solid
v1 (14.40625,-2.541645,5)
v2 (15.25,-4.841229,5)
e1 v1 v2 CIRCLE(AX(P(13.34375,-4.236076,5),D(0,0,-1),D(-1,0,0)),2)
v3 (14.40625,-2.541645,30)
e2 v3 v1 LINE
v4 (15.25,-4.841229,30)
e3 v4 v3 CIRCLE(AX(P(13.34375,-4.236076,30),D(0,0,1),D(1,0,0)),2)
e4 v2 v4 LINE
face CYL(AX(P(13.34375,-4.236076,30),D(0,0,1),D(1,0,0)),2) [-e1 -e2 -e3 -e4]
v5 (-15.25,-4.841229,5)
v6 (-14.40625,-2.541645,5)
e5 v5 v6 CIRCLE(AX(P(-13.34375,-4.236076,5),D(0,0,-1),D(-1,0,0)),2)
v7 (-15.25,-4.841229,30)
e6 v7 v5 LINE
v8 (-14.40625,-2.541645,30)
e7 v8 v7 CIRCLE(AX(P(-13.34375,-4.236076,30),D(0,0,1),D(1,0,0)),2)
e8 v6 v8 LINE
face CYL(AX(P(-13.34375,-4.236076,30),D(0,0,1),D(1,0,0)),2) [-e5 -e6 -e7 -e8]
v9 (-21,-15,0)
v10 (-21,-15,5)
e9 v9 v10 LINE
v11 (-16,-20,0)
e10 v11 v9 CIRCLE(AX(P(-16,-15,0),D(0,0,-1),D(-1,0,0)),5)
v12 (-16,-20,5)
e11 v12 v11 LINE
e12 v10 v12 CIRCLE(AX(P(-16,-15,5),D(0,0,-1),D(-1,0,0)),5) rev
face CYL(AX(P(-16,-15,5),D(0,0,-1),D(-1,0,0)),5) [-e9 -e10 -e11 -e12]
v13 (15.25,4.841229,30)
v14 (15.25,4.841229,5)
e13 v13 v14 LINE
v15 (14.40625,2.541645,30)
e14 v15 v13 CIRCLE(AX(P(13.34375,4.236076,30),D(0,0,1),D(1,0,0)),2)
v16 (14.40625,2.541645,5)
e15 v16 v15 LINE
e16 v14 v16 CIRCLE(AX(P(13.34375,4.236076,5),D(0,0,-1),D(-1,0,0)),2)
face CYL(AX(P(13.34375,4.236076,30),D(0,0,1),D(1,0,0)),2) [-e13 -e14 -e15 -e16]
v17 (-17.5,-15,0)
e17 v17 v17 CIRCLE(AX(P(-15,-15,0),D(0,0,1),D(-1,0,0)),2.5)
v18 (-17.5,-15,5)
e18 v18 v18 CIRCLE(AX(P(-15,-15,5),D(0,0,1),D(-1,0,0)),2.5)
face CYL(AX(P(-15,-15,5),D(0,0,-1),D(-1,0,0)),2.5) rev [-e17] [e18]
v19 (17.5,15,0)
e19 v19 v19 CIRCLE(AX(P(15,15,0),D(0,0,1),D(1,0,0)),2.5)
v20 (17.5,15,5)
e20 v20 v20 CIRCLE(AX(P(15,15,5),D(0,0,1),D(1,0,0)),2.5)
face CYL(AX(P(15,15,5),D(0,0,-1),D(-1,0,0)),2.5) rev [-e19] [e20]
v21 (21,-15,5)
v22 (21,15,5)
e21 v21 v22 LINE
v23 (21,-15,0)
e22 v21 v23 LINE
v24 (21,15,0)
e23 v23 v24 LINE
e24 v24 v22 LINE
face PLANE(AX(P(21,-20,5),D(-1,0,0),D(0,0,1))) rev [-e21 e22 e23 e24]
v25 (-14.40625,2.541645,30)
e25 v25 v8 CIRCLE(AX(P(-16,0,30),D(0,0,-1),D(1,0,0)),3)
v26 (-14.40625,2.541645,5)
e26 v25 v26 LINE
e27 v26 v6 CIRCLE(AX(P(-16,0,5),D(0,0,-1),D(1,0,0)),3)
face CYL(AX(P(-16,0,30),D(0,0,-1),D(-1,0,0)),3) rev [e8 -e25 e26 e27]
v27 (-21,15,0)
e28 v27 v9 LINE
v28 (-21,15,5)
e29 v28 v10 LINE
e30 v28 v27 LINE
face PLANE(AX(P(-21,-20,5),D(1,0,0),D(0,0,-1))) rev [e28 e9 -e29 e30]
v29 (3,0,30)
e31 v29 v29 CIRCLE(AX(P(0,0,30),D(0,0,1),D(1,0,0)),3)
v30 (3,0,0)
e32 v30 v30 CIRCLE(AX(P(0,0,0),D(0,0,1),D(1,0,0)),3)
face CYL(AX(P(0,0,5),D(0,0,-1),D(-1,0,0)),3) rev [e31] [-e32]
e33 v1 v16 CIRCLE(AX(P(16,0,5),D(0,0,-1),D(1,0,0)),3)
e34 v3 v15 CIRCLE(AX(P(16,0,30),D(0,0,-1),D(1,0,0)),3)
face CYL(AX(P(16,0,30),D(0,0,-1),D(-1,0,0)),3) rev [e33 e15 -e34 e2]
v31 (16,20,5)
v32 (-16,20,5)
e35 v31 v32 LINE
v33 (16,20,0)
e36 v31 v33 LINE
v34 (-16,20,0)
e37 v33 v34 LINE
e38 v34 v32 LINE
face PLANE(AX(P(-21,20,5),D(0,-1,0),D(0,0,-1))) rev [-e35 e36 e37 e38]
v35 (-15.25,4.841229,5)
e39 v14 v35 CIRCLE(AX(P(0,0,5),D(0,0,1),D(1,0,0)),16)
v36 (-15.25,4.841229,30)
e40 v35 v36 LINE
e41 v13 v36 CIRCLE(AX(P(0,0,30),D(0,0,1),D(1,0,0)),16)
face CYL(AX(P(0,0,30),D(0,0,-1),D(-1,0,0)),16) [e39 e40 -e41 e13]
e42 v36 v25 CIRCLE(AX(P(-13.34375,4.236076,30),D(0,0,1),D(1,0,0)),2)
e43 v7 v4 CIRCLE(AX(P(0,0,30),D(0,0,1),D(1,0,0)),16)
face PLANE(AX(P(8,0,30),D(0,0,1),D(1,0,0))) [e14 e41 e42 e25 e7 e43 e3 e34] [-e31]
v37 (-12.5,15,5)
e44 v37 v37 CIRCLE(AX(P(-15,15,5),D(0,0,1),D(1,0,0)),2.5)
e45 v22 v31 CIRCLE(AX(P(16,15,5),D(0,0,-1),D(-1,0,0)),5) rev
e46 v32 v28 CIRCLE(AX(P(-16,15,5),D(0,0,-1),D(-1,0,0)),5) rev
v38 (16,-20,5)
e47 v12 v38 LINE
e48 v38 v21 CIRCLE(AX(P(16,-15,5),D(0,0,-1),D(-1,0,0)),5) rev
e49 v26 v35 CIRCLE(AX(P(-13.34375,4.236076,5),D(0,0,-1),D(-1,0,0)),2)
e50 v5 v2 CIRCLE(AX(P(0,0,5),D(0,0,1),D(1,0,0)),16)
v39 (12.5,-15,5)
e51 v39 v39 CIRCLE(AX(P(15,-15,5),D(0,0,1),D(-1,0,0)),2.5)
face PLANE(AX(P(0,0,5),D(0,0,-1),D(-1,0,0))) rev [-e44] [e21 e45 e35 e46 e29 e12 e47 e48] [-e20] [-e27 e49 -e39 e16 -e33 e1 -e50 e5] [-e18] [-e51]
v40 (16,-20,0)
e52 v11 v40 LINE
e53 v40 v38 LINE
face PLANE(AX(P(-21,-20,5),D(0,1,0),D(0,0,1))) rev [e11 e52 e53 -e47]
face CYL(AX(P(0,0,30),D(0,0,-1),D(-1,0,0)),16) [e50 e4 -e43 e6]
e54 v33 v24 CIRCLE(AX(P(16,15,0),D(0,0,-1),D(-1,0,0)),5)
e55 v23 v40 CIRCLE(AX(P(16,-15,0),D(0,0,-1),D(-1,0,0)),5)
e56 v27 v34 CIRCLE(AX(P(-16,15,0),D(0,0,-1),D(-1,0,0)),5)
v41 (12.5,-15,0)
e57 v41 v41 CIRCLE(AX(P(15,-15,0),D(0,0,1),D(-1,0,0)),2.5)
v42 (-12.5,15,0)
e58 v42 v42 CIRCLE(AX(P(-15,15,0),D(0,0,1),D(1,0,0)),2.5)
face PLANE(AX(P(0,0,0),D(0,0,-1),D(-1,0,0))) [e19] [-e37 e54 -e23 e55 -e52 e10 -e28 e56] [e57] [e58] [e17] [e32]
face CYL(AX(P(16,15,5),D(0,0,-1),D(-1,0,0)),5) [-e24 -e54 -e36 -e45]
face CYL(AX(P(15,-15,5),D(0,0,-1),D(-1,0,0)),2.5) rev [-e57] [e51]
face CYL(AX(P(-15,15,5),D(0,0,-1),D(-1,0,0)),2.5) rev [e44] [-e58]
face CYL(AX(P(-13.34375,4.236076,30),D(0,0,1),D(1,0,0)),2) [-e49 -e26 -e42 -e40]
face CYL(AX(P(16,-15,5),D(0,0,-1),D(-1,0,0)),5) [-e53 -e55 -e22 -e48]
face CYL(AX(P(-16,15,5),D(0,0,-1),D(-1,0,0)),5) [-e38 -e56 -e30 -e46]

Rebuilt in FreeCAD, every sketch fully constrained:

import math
import FreeCAD as App
import Part
import Sketcher

V = App.Vector
Q = App.Units.Quantity


def edges_at(feature, points):
    """Names of the edges that pass closest to the given points."""
    edges = feature.Shape.Edges
    near = lambda p: min(range(len(edges)), key=lambda i: edges[i].distToShape(Part.Vertex(*p))[0])
    return sorted({f"Edge{near(p) + 1}" for p in points})

doc = App.newDocument("Part")
params = doc.addObject("Spreadsheet::Sheet", "Params")
for row, (alias, value) in enumerate([
    ("sketch1_diameter", "5 mm"),
    ("sketch1_diameter2", "6 mm"),
    ("sketch1_width", "42 mm"),
    ("sketch1_height", "40 mm"),
    ("pad1_length", "5 mm"),
    ("fillet_radius", "5 mm"),
    ("sketch2_diameter", "6 mm"),
    ("sketch2_radius", "16 mm"),
    ("pad2_length", "25 mm"),
    ("fillet2_radius", "2 mm"),
], start=1):
    params.set(f"A{row}", alias)
    params.set(f"B{row}", "=" + value)
    params.setAlias(f"B{row}", alias)

body = doc.addObject("PartDesign::Body", "Body")

# Sketch on XY plane
sketch1 = body.newObject("Sketcher::SketchObject", "Sketch")
sketch1.AttachmentSupport = (doc.getObject("XY_Plane"), [""])
sketch1.MapMode = "FlatFace"
sketch1.addGeometry([
    Part.LineSegment(V(-21, 20, 0), V(-21, -20, 0)),  # 0
    Part.LineSegment(V(-21, -20, 0), V(21, -20, 0)),  # 1
    Part.LineSegment(V(21, -20, 0), V(21, 20, 0)),  # 2
    Part.LineSegment(V(21, 20, 0), V(-21, 20, 0)),  # 3
    Part.Circle(V(-15, -15, 0), V(0, 0, 1), 2.5),  # 4
    Part.Circle(V(15, -15, 0), V(0, 0, 1), 2.5),  # 5
    Part.Circle(V(-15, 15, 0), V(0, 0, 1), 2.5),  # 6
    Part.Circle(V(0, 0, 0), V(0, 0, 1), 3),  # 7
    Part.Circle(V(15, 15, 0), V(0, 0, 1), 2.5),  # 8
], False)
sketch1.addConstraint([
    Sketcher.Constraint("Coincident", 0, 2, 1, 1),
    Sketcher.Constraint("Coincident", 1, 2, 2, 1),
    Sketcher.Constraint("Coincident", 2, 2, 3, 1),
    Sketcher.Constraint("Coincident", 3, 2, 0, 1),
    Sketcher.Constraint("Vertical", 0),
    Sketcher.Constraint("Horizontal", 1),
    Sketcher.Constraint("Vertical", 2),
    Sketcher.Constraint("Horizontal", 3),
    Sketcher.Constraint("Coincident", 7, 3, -1, 1),
    Sketcher.Constraint("Equal", 4, 5),
    Sketcher.Constraint("Equal", 5, 6),
    Sketcher.Constraint("Equal", 6, 8),
    Sketcher.Constraint("Symmetric", 5, 3, 6, 3, -1, 1),
    Sketcher.Constraint("Symmetric", 4, 3, 8, 3, -1, 1),
    Sketcher.Constraint("Symmetric", 0, 2, 2, 2, -1, 1),
    Sketcher.Constraint("Symmetric", 4, 3, 5, 3, -2),
    Sketcher.Constraint("Diameter", 4, Q("5 mm")),
    Sketcher.Constraint("Diameter", 7, Q("6 mm")),
    Sketcher.Constraint("DistanceX", 1, 1, 1, 2, Q("42 mm")),
    Sketcher.Constraint("DistanceY", 0, 2, 0, 1, Q("40 mm")),
    Sketcher.Constraint("DistanceX", 4, 3, -1, 1, Q("15 mm")),
    Sketcher.Constraint("DistanceY", 4, 3, -1, 1, Q("15 mm")),
])
sketch1.setExpression("Constraints[16]", "Params.sketch1_diameter")
sketch1.setExpression("Constraints[17]", "Params.sketch1_diameter2")
sketch1.setExpression("Constraints[18]", "Params.sketch1_width")
sketch1.setExpression("Constraints[19]", "Params.sketch1_height")
pad1 = body.newObject("PartDesign::Pad", "Pad")
pad1.Profile = sketch1
pad1.setExpression("Length", "Params.pad1_length")
doc.recompute()

fillet = body.newObject("PartDesign::Fillet", "Fillet")
fillet.Base = (pad1, edges_at(pad1, [
    (21, -20, 2.5),
    (-21, -20, 2.5),
    (-21, 20, 2.5),
    (21, 20, 2.5),
]))
fillet.setExpression("Radius", "Params.fillet_radius")

# Sketch on XY plane
sketch2 = body.newObject("Sketcher::SketchObject", "Sketch001")
sketch2.AttachmentSupport = (doc.getObject("XY_Plane"), [""])
sketch2.MapMode = "FlatFace"
sketch2.AttachmentOffset = App.Placement(V(0, 0, 5), App.Rotation())
sketch2.addGeometry([
    Part.ArcOfCircle(Part.Circle(V(0, 0, 0), V(0, 0, 1), 16), math.radians(-169), math.radians(-11)),  # 0
    Part.ArcOfCircle(Part.Circle(V(16, 0, 0), V(0, 0, 1), 3), math.radians(95), math.radians(265)),  # 1
    Part.ArcOfCircle(Part.Circle(V(0, 0, 0), V(0, 0, 1), 16), math.radians(11), math.radians(169)),  # 2
    Part.ArcOfCircle(Part.Circle(V(-16, 0, 0), V(0, 0, 1), 3), math.radians(-85), math.radians(85)),  # 3
    Part.Circle(V(0, 0, 0), V(0, 0, 1), 3),  # 4
], False)
sketch2.addConstraint([
    Sketcher.Constraint("Coincident", 0, 2, 1, 2),
    Sketcher.Constraint("Coincident", 1, 1, 2, 1),
    Sketcher.Constraint("Coincident", 2, 2, 3, 2),
    Sketcher.Constraint("Coincident", 3, 1, 0, 1),
    Sketcher.Constraint("Coincident", 0, 3, -1, 1),
    Sketcher.Constraint("Coincident", 2, 3, -1, 1),
    Sketcher.Constraint("Coincident", 4, 3, -1, 1),
    Sketcher.Constraint("Equal", 0, 2),
    Sketcher.Constraint("Equal", 1, 3),
    Sketcher.Constraint("Equal", 3, 4),
    Sketcher.Constraint("Symmetric", 1, 3, 3, 3, -1, 1),
    Sketcher.Constraint("PointOnObject", 1, 3, -1),
    Sketcher.Constraint("Diameter", 4, Q("6 mm")),
    Sketcher.Constraint("Radius", 0, Q("16 mm")),
    Sketcher.Constraint("DistanceX", -1, 1, 1, 3, Q("16 mm")),
])
sketch2.setExpression("Constraints[12]", "Params.sketch2_diameter")
sketch2.setExpression("Constraints[13]", "Params.sketch2_radius")
pad2 = body.newObject("PartDesign::Pad", "Pad001")
pad2.Profile = sketch2
pad2.setExpression("Length", "Params.pad2_length")
doc.recompute()

fillet2 = body.newObject("PartDesign::Fillet", "Fillet001")
fillet2.Base = (pad2, edges_at(pad2, [
    (15.719, -2.987, 17.5),
    (15.719, 2.987, 17.5),
    (-15.719, 2.987, 17.5),
    (-15.719, -2.987, 17.5),
]))
fillet2.setExpression("Radius", "Params.fillet2_radius")

doc.recompute()
